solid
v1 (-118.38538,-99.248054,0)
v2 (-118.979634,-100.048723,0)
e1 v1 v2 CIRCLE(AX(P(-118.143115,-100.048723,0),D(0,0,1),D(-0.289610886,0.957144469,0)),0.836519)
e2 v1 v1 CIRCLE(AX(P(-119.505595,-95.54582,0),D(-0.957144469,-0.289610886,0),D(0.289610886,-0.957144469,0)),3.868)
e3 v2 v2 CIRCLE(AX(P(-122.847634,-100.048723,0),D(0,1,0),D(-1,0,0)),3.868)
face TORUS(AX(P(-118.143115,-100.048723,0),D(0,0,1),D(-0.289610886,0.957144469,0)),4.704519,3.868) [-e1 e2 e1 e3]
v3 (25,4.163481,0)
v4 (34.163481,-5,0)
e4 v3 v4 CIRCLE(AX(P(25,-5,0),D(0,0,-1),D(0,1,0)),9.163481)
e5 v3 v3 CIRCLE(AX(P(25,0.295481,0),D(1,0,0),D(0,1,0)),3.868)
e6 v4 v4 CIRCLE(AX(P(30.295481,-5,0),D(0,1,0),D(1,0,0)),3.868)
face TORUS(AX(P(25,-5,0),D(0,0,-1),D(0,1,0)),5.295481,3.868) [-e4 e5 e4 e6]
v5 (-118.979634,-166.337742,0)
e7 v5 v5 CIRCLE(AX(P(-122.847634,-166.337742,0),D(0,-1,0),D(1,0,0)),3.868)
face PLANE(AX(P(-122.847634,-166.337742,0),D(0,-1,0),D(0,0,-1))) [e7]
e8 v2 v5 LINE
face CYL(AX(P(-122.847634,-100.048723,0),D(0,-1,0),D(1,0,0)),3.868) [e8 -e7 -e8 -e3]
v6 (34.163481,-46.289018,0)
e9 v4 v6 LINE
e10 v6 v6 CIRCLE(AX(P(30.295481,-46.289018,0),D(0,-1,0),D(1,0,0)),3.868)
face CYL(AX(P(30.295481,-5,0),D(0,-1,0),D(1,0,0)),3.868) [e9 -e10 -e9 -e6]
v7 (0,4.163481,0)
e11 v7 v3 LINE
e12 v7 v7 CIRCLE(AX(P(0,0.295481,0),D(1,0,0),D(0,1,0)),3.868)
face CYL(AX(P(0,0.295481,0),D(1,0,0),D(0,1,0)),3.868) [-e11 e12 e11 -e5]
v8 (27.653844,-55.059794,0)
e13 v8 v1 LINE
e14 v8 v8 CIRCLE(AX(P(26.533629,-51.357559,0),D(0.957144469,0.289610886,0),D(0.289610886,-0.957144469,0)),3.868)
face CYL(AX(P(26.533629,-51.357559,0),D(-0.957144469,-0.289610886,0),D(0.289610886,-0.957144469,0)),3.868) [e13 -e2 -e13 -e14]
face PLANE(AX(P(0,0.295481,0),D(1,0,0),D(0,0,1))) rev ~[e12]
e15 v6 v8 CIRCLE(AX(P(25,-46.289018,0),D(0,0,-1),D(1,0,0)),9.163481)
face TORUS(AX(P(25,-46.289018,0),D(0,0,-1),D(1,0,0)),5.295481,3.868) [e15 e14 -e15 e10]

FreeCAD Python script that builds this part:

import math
import FreeCAD as App
import Part
import Sketcher
from FreeCAD import Vector

doc = App.newDocument("Part")
body = doc.addObject("PartDesign::Body", "Body")

# Sketch on XZ plane
sketch1 = body.newObject("Sketcher::SketchObject", "Sketch")
sketch1.AttachmentSupport = (doc.getObject("XZ_Plane"), [""])
sketch1.MapMode = "FlatFace"
sketch1.AttachmentOffset = App.Placement(Vector(0, 0, 166.337742), App.Rotation())
sketch1.addGeometry(Part.Circle(Vector(-122.847634, 0, 0), Vector(0, 0, 1), 3.868), False)
sketch1.addConstraint([
    Sketcher.Constraint("PointOnObject", 0, 3, -1),
    Sketcher.Constraint("Diameter", 0, 7.736),
    Sketcher.Constraint("DistanceX", 0, 3, -1, 1, 122.847634),
])

# Sketch on XY plane
sketch2 = body.newObject("Sketcher::SketchObject", "Sketch001")
sketch2.AttachmentSupport = (doc.getObject("XY_Plane"), [""])
sketch2.MapMode = "FlatFace"
sketch2.addGeometry([
    Part.LineSegment(Vector(0, 0, 0), Vector(25, 0, 0)),  # 0
    Part.ArcOfCircle(Part.Circle(Vector(25, -5, 0), Vector(0, 0, 1), 5), math.radians(0), math.radians(90)),  # 1
    Part.LineSegment(Vector(30, -5, 0), Vector(30, -46.289018, 0)),  # 2
    Part.ArcOfCircle(Part.Circle(Vector(25, -46.289018, 0), Vector(0, 0, 1), 5), math.radians(-73.165338), math.radians(0)),  # 3
    Part.LineSegment(Vector(26.448054, -51.074741, 0), Vector(-119.591169, -95.263001, 0)),  # 4
    Part.ArcOfCircle(Part.Circle(Vector(-118.143115, -100.048723, 0), Vector(0, 0, 1), 5), math.radians(106.834662), math.radians(180)),  # 5
    Part.LineSegment(Vector(-123.143115, -100.048723, 0), Vector(-123.143115, -166.337742, 0)),  # 6
], False)
sketch2.addConstraint([
    Sketcher.Constraint("Tangent", 0, 2, 1, 2),
    Sketcher.Constraint("Tangent", 1, 1, 2, 1),
    Sketcher.Constraint("Tangent", 2, 2, 3, 2),
    Sketcher.Constraint("Tangent", 3, 1, 4, 1),
    Sketcher.Constraint("Tangent", 4, 2, 5, 1),
    Sketcher.Constraint("Tangent", 5, 2, 6, 1),
    Sketcher.Constraint("Horizontal", 0),
    Sketcher.Constraint("Vertical", 2),
    Sketcher.Constraint("Vertical", 6),
    Sketcher.Constraint("Coincident", 0, 1, -1, 1),
    Sketcher.Constraint("Equal", 1, 3),
    Sketcher.Constraint("Equal", 3, 5),
    Sketcher.Constraint("Radius", 1, 5.0),
    Sketcher.Constraint("DistanceX", 0, 1, 0, 2, 25.0),
    Sketcher.Constraint("DistanceY", 4, 2, -1, 1, 95.263001),
    Sketcher.Constraint("DistanceY", 6, 2, 3, 1, 115.263001),
    Sketcher.Constraint("DistanceY", 2, 2, 2, 1, 41.289018),
    Sketcher.Constraint("DistanceX", 4, 2, -1, 1, 119.591169),
])
doc.recompute()

additivepipe = body.newObject("PartDesign::AdditivePipe", "AdditivePipe")
additivepipe.Profile = sketch1
additivepipe.Spine = (sketch2, ["Edge1", "Edge2", "Edge3", "Edge4", "Edge5", "Edge6", "Edge7"])

doc.recompute()
